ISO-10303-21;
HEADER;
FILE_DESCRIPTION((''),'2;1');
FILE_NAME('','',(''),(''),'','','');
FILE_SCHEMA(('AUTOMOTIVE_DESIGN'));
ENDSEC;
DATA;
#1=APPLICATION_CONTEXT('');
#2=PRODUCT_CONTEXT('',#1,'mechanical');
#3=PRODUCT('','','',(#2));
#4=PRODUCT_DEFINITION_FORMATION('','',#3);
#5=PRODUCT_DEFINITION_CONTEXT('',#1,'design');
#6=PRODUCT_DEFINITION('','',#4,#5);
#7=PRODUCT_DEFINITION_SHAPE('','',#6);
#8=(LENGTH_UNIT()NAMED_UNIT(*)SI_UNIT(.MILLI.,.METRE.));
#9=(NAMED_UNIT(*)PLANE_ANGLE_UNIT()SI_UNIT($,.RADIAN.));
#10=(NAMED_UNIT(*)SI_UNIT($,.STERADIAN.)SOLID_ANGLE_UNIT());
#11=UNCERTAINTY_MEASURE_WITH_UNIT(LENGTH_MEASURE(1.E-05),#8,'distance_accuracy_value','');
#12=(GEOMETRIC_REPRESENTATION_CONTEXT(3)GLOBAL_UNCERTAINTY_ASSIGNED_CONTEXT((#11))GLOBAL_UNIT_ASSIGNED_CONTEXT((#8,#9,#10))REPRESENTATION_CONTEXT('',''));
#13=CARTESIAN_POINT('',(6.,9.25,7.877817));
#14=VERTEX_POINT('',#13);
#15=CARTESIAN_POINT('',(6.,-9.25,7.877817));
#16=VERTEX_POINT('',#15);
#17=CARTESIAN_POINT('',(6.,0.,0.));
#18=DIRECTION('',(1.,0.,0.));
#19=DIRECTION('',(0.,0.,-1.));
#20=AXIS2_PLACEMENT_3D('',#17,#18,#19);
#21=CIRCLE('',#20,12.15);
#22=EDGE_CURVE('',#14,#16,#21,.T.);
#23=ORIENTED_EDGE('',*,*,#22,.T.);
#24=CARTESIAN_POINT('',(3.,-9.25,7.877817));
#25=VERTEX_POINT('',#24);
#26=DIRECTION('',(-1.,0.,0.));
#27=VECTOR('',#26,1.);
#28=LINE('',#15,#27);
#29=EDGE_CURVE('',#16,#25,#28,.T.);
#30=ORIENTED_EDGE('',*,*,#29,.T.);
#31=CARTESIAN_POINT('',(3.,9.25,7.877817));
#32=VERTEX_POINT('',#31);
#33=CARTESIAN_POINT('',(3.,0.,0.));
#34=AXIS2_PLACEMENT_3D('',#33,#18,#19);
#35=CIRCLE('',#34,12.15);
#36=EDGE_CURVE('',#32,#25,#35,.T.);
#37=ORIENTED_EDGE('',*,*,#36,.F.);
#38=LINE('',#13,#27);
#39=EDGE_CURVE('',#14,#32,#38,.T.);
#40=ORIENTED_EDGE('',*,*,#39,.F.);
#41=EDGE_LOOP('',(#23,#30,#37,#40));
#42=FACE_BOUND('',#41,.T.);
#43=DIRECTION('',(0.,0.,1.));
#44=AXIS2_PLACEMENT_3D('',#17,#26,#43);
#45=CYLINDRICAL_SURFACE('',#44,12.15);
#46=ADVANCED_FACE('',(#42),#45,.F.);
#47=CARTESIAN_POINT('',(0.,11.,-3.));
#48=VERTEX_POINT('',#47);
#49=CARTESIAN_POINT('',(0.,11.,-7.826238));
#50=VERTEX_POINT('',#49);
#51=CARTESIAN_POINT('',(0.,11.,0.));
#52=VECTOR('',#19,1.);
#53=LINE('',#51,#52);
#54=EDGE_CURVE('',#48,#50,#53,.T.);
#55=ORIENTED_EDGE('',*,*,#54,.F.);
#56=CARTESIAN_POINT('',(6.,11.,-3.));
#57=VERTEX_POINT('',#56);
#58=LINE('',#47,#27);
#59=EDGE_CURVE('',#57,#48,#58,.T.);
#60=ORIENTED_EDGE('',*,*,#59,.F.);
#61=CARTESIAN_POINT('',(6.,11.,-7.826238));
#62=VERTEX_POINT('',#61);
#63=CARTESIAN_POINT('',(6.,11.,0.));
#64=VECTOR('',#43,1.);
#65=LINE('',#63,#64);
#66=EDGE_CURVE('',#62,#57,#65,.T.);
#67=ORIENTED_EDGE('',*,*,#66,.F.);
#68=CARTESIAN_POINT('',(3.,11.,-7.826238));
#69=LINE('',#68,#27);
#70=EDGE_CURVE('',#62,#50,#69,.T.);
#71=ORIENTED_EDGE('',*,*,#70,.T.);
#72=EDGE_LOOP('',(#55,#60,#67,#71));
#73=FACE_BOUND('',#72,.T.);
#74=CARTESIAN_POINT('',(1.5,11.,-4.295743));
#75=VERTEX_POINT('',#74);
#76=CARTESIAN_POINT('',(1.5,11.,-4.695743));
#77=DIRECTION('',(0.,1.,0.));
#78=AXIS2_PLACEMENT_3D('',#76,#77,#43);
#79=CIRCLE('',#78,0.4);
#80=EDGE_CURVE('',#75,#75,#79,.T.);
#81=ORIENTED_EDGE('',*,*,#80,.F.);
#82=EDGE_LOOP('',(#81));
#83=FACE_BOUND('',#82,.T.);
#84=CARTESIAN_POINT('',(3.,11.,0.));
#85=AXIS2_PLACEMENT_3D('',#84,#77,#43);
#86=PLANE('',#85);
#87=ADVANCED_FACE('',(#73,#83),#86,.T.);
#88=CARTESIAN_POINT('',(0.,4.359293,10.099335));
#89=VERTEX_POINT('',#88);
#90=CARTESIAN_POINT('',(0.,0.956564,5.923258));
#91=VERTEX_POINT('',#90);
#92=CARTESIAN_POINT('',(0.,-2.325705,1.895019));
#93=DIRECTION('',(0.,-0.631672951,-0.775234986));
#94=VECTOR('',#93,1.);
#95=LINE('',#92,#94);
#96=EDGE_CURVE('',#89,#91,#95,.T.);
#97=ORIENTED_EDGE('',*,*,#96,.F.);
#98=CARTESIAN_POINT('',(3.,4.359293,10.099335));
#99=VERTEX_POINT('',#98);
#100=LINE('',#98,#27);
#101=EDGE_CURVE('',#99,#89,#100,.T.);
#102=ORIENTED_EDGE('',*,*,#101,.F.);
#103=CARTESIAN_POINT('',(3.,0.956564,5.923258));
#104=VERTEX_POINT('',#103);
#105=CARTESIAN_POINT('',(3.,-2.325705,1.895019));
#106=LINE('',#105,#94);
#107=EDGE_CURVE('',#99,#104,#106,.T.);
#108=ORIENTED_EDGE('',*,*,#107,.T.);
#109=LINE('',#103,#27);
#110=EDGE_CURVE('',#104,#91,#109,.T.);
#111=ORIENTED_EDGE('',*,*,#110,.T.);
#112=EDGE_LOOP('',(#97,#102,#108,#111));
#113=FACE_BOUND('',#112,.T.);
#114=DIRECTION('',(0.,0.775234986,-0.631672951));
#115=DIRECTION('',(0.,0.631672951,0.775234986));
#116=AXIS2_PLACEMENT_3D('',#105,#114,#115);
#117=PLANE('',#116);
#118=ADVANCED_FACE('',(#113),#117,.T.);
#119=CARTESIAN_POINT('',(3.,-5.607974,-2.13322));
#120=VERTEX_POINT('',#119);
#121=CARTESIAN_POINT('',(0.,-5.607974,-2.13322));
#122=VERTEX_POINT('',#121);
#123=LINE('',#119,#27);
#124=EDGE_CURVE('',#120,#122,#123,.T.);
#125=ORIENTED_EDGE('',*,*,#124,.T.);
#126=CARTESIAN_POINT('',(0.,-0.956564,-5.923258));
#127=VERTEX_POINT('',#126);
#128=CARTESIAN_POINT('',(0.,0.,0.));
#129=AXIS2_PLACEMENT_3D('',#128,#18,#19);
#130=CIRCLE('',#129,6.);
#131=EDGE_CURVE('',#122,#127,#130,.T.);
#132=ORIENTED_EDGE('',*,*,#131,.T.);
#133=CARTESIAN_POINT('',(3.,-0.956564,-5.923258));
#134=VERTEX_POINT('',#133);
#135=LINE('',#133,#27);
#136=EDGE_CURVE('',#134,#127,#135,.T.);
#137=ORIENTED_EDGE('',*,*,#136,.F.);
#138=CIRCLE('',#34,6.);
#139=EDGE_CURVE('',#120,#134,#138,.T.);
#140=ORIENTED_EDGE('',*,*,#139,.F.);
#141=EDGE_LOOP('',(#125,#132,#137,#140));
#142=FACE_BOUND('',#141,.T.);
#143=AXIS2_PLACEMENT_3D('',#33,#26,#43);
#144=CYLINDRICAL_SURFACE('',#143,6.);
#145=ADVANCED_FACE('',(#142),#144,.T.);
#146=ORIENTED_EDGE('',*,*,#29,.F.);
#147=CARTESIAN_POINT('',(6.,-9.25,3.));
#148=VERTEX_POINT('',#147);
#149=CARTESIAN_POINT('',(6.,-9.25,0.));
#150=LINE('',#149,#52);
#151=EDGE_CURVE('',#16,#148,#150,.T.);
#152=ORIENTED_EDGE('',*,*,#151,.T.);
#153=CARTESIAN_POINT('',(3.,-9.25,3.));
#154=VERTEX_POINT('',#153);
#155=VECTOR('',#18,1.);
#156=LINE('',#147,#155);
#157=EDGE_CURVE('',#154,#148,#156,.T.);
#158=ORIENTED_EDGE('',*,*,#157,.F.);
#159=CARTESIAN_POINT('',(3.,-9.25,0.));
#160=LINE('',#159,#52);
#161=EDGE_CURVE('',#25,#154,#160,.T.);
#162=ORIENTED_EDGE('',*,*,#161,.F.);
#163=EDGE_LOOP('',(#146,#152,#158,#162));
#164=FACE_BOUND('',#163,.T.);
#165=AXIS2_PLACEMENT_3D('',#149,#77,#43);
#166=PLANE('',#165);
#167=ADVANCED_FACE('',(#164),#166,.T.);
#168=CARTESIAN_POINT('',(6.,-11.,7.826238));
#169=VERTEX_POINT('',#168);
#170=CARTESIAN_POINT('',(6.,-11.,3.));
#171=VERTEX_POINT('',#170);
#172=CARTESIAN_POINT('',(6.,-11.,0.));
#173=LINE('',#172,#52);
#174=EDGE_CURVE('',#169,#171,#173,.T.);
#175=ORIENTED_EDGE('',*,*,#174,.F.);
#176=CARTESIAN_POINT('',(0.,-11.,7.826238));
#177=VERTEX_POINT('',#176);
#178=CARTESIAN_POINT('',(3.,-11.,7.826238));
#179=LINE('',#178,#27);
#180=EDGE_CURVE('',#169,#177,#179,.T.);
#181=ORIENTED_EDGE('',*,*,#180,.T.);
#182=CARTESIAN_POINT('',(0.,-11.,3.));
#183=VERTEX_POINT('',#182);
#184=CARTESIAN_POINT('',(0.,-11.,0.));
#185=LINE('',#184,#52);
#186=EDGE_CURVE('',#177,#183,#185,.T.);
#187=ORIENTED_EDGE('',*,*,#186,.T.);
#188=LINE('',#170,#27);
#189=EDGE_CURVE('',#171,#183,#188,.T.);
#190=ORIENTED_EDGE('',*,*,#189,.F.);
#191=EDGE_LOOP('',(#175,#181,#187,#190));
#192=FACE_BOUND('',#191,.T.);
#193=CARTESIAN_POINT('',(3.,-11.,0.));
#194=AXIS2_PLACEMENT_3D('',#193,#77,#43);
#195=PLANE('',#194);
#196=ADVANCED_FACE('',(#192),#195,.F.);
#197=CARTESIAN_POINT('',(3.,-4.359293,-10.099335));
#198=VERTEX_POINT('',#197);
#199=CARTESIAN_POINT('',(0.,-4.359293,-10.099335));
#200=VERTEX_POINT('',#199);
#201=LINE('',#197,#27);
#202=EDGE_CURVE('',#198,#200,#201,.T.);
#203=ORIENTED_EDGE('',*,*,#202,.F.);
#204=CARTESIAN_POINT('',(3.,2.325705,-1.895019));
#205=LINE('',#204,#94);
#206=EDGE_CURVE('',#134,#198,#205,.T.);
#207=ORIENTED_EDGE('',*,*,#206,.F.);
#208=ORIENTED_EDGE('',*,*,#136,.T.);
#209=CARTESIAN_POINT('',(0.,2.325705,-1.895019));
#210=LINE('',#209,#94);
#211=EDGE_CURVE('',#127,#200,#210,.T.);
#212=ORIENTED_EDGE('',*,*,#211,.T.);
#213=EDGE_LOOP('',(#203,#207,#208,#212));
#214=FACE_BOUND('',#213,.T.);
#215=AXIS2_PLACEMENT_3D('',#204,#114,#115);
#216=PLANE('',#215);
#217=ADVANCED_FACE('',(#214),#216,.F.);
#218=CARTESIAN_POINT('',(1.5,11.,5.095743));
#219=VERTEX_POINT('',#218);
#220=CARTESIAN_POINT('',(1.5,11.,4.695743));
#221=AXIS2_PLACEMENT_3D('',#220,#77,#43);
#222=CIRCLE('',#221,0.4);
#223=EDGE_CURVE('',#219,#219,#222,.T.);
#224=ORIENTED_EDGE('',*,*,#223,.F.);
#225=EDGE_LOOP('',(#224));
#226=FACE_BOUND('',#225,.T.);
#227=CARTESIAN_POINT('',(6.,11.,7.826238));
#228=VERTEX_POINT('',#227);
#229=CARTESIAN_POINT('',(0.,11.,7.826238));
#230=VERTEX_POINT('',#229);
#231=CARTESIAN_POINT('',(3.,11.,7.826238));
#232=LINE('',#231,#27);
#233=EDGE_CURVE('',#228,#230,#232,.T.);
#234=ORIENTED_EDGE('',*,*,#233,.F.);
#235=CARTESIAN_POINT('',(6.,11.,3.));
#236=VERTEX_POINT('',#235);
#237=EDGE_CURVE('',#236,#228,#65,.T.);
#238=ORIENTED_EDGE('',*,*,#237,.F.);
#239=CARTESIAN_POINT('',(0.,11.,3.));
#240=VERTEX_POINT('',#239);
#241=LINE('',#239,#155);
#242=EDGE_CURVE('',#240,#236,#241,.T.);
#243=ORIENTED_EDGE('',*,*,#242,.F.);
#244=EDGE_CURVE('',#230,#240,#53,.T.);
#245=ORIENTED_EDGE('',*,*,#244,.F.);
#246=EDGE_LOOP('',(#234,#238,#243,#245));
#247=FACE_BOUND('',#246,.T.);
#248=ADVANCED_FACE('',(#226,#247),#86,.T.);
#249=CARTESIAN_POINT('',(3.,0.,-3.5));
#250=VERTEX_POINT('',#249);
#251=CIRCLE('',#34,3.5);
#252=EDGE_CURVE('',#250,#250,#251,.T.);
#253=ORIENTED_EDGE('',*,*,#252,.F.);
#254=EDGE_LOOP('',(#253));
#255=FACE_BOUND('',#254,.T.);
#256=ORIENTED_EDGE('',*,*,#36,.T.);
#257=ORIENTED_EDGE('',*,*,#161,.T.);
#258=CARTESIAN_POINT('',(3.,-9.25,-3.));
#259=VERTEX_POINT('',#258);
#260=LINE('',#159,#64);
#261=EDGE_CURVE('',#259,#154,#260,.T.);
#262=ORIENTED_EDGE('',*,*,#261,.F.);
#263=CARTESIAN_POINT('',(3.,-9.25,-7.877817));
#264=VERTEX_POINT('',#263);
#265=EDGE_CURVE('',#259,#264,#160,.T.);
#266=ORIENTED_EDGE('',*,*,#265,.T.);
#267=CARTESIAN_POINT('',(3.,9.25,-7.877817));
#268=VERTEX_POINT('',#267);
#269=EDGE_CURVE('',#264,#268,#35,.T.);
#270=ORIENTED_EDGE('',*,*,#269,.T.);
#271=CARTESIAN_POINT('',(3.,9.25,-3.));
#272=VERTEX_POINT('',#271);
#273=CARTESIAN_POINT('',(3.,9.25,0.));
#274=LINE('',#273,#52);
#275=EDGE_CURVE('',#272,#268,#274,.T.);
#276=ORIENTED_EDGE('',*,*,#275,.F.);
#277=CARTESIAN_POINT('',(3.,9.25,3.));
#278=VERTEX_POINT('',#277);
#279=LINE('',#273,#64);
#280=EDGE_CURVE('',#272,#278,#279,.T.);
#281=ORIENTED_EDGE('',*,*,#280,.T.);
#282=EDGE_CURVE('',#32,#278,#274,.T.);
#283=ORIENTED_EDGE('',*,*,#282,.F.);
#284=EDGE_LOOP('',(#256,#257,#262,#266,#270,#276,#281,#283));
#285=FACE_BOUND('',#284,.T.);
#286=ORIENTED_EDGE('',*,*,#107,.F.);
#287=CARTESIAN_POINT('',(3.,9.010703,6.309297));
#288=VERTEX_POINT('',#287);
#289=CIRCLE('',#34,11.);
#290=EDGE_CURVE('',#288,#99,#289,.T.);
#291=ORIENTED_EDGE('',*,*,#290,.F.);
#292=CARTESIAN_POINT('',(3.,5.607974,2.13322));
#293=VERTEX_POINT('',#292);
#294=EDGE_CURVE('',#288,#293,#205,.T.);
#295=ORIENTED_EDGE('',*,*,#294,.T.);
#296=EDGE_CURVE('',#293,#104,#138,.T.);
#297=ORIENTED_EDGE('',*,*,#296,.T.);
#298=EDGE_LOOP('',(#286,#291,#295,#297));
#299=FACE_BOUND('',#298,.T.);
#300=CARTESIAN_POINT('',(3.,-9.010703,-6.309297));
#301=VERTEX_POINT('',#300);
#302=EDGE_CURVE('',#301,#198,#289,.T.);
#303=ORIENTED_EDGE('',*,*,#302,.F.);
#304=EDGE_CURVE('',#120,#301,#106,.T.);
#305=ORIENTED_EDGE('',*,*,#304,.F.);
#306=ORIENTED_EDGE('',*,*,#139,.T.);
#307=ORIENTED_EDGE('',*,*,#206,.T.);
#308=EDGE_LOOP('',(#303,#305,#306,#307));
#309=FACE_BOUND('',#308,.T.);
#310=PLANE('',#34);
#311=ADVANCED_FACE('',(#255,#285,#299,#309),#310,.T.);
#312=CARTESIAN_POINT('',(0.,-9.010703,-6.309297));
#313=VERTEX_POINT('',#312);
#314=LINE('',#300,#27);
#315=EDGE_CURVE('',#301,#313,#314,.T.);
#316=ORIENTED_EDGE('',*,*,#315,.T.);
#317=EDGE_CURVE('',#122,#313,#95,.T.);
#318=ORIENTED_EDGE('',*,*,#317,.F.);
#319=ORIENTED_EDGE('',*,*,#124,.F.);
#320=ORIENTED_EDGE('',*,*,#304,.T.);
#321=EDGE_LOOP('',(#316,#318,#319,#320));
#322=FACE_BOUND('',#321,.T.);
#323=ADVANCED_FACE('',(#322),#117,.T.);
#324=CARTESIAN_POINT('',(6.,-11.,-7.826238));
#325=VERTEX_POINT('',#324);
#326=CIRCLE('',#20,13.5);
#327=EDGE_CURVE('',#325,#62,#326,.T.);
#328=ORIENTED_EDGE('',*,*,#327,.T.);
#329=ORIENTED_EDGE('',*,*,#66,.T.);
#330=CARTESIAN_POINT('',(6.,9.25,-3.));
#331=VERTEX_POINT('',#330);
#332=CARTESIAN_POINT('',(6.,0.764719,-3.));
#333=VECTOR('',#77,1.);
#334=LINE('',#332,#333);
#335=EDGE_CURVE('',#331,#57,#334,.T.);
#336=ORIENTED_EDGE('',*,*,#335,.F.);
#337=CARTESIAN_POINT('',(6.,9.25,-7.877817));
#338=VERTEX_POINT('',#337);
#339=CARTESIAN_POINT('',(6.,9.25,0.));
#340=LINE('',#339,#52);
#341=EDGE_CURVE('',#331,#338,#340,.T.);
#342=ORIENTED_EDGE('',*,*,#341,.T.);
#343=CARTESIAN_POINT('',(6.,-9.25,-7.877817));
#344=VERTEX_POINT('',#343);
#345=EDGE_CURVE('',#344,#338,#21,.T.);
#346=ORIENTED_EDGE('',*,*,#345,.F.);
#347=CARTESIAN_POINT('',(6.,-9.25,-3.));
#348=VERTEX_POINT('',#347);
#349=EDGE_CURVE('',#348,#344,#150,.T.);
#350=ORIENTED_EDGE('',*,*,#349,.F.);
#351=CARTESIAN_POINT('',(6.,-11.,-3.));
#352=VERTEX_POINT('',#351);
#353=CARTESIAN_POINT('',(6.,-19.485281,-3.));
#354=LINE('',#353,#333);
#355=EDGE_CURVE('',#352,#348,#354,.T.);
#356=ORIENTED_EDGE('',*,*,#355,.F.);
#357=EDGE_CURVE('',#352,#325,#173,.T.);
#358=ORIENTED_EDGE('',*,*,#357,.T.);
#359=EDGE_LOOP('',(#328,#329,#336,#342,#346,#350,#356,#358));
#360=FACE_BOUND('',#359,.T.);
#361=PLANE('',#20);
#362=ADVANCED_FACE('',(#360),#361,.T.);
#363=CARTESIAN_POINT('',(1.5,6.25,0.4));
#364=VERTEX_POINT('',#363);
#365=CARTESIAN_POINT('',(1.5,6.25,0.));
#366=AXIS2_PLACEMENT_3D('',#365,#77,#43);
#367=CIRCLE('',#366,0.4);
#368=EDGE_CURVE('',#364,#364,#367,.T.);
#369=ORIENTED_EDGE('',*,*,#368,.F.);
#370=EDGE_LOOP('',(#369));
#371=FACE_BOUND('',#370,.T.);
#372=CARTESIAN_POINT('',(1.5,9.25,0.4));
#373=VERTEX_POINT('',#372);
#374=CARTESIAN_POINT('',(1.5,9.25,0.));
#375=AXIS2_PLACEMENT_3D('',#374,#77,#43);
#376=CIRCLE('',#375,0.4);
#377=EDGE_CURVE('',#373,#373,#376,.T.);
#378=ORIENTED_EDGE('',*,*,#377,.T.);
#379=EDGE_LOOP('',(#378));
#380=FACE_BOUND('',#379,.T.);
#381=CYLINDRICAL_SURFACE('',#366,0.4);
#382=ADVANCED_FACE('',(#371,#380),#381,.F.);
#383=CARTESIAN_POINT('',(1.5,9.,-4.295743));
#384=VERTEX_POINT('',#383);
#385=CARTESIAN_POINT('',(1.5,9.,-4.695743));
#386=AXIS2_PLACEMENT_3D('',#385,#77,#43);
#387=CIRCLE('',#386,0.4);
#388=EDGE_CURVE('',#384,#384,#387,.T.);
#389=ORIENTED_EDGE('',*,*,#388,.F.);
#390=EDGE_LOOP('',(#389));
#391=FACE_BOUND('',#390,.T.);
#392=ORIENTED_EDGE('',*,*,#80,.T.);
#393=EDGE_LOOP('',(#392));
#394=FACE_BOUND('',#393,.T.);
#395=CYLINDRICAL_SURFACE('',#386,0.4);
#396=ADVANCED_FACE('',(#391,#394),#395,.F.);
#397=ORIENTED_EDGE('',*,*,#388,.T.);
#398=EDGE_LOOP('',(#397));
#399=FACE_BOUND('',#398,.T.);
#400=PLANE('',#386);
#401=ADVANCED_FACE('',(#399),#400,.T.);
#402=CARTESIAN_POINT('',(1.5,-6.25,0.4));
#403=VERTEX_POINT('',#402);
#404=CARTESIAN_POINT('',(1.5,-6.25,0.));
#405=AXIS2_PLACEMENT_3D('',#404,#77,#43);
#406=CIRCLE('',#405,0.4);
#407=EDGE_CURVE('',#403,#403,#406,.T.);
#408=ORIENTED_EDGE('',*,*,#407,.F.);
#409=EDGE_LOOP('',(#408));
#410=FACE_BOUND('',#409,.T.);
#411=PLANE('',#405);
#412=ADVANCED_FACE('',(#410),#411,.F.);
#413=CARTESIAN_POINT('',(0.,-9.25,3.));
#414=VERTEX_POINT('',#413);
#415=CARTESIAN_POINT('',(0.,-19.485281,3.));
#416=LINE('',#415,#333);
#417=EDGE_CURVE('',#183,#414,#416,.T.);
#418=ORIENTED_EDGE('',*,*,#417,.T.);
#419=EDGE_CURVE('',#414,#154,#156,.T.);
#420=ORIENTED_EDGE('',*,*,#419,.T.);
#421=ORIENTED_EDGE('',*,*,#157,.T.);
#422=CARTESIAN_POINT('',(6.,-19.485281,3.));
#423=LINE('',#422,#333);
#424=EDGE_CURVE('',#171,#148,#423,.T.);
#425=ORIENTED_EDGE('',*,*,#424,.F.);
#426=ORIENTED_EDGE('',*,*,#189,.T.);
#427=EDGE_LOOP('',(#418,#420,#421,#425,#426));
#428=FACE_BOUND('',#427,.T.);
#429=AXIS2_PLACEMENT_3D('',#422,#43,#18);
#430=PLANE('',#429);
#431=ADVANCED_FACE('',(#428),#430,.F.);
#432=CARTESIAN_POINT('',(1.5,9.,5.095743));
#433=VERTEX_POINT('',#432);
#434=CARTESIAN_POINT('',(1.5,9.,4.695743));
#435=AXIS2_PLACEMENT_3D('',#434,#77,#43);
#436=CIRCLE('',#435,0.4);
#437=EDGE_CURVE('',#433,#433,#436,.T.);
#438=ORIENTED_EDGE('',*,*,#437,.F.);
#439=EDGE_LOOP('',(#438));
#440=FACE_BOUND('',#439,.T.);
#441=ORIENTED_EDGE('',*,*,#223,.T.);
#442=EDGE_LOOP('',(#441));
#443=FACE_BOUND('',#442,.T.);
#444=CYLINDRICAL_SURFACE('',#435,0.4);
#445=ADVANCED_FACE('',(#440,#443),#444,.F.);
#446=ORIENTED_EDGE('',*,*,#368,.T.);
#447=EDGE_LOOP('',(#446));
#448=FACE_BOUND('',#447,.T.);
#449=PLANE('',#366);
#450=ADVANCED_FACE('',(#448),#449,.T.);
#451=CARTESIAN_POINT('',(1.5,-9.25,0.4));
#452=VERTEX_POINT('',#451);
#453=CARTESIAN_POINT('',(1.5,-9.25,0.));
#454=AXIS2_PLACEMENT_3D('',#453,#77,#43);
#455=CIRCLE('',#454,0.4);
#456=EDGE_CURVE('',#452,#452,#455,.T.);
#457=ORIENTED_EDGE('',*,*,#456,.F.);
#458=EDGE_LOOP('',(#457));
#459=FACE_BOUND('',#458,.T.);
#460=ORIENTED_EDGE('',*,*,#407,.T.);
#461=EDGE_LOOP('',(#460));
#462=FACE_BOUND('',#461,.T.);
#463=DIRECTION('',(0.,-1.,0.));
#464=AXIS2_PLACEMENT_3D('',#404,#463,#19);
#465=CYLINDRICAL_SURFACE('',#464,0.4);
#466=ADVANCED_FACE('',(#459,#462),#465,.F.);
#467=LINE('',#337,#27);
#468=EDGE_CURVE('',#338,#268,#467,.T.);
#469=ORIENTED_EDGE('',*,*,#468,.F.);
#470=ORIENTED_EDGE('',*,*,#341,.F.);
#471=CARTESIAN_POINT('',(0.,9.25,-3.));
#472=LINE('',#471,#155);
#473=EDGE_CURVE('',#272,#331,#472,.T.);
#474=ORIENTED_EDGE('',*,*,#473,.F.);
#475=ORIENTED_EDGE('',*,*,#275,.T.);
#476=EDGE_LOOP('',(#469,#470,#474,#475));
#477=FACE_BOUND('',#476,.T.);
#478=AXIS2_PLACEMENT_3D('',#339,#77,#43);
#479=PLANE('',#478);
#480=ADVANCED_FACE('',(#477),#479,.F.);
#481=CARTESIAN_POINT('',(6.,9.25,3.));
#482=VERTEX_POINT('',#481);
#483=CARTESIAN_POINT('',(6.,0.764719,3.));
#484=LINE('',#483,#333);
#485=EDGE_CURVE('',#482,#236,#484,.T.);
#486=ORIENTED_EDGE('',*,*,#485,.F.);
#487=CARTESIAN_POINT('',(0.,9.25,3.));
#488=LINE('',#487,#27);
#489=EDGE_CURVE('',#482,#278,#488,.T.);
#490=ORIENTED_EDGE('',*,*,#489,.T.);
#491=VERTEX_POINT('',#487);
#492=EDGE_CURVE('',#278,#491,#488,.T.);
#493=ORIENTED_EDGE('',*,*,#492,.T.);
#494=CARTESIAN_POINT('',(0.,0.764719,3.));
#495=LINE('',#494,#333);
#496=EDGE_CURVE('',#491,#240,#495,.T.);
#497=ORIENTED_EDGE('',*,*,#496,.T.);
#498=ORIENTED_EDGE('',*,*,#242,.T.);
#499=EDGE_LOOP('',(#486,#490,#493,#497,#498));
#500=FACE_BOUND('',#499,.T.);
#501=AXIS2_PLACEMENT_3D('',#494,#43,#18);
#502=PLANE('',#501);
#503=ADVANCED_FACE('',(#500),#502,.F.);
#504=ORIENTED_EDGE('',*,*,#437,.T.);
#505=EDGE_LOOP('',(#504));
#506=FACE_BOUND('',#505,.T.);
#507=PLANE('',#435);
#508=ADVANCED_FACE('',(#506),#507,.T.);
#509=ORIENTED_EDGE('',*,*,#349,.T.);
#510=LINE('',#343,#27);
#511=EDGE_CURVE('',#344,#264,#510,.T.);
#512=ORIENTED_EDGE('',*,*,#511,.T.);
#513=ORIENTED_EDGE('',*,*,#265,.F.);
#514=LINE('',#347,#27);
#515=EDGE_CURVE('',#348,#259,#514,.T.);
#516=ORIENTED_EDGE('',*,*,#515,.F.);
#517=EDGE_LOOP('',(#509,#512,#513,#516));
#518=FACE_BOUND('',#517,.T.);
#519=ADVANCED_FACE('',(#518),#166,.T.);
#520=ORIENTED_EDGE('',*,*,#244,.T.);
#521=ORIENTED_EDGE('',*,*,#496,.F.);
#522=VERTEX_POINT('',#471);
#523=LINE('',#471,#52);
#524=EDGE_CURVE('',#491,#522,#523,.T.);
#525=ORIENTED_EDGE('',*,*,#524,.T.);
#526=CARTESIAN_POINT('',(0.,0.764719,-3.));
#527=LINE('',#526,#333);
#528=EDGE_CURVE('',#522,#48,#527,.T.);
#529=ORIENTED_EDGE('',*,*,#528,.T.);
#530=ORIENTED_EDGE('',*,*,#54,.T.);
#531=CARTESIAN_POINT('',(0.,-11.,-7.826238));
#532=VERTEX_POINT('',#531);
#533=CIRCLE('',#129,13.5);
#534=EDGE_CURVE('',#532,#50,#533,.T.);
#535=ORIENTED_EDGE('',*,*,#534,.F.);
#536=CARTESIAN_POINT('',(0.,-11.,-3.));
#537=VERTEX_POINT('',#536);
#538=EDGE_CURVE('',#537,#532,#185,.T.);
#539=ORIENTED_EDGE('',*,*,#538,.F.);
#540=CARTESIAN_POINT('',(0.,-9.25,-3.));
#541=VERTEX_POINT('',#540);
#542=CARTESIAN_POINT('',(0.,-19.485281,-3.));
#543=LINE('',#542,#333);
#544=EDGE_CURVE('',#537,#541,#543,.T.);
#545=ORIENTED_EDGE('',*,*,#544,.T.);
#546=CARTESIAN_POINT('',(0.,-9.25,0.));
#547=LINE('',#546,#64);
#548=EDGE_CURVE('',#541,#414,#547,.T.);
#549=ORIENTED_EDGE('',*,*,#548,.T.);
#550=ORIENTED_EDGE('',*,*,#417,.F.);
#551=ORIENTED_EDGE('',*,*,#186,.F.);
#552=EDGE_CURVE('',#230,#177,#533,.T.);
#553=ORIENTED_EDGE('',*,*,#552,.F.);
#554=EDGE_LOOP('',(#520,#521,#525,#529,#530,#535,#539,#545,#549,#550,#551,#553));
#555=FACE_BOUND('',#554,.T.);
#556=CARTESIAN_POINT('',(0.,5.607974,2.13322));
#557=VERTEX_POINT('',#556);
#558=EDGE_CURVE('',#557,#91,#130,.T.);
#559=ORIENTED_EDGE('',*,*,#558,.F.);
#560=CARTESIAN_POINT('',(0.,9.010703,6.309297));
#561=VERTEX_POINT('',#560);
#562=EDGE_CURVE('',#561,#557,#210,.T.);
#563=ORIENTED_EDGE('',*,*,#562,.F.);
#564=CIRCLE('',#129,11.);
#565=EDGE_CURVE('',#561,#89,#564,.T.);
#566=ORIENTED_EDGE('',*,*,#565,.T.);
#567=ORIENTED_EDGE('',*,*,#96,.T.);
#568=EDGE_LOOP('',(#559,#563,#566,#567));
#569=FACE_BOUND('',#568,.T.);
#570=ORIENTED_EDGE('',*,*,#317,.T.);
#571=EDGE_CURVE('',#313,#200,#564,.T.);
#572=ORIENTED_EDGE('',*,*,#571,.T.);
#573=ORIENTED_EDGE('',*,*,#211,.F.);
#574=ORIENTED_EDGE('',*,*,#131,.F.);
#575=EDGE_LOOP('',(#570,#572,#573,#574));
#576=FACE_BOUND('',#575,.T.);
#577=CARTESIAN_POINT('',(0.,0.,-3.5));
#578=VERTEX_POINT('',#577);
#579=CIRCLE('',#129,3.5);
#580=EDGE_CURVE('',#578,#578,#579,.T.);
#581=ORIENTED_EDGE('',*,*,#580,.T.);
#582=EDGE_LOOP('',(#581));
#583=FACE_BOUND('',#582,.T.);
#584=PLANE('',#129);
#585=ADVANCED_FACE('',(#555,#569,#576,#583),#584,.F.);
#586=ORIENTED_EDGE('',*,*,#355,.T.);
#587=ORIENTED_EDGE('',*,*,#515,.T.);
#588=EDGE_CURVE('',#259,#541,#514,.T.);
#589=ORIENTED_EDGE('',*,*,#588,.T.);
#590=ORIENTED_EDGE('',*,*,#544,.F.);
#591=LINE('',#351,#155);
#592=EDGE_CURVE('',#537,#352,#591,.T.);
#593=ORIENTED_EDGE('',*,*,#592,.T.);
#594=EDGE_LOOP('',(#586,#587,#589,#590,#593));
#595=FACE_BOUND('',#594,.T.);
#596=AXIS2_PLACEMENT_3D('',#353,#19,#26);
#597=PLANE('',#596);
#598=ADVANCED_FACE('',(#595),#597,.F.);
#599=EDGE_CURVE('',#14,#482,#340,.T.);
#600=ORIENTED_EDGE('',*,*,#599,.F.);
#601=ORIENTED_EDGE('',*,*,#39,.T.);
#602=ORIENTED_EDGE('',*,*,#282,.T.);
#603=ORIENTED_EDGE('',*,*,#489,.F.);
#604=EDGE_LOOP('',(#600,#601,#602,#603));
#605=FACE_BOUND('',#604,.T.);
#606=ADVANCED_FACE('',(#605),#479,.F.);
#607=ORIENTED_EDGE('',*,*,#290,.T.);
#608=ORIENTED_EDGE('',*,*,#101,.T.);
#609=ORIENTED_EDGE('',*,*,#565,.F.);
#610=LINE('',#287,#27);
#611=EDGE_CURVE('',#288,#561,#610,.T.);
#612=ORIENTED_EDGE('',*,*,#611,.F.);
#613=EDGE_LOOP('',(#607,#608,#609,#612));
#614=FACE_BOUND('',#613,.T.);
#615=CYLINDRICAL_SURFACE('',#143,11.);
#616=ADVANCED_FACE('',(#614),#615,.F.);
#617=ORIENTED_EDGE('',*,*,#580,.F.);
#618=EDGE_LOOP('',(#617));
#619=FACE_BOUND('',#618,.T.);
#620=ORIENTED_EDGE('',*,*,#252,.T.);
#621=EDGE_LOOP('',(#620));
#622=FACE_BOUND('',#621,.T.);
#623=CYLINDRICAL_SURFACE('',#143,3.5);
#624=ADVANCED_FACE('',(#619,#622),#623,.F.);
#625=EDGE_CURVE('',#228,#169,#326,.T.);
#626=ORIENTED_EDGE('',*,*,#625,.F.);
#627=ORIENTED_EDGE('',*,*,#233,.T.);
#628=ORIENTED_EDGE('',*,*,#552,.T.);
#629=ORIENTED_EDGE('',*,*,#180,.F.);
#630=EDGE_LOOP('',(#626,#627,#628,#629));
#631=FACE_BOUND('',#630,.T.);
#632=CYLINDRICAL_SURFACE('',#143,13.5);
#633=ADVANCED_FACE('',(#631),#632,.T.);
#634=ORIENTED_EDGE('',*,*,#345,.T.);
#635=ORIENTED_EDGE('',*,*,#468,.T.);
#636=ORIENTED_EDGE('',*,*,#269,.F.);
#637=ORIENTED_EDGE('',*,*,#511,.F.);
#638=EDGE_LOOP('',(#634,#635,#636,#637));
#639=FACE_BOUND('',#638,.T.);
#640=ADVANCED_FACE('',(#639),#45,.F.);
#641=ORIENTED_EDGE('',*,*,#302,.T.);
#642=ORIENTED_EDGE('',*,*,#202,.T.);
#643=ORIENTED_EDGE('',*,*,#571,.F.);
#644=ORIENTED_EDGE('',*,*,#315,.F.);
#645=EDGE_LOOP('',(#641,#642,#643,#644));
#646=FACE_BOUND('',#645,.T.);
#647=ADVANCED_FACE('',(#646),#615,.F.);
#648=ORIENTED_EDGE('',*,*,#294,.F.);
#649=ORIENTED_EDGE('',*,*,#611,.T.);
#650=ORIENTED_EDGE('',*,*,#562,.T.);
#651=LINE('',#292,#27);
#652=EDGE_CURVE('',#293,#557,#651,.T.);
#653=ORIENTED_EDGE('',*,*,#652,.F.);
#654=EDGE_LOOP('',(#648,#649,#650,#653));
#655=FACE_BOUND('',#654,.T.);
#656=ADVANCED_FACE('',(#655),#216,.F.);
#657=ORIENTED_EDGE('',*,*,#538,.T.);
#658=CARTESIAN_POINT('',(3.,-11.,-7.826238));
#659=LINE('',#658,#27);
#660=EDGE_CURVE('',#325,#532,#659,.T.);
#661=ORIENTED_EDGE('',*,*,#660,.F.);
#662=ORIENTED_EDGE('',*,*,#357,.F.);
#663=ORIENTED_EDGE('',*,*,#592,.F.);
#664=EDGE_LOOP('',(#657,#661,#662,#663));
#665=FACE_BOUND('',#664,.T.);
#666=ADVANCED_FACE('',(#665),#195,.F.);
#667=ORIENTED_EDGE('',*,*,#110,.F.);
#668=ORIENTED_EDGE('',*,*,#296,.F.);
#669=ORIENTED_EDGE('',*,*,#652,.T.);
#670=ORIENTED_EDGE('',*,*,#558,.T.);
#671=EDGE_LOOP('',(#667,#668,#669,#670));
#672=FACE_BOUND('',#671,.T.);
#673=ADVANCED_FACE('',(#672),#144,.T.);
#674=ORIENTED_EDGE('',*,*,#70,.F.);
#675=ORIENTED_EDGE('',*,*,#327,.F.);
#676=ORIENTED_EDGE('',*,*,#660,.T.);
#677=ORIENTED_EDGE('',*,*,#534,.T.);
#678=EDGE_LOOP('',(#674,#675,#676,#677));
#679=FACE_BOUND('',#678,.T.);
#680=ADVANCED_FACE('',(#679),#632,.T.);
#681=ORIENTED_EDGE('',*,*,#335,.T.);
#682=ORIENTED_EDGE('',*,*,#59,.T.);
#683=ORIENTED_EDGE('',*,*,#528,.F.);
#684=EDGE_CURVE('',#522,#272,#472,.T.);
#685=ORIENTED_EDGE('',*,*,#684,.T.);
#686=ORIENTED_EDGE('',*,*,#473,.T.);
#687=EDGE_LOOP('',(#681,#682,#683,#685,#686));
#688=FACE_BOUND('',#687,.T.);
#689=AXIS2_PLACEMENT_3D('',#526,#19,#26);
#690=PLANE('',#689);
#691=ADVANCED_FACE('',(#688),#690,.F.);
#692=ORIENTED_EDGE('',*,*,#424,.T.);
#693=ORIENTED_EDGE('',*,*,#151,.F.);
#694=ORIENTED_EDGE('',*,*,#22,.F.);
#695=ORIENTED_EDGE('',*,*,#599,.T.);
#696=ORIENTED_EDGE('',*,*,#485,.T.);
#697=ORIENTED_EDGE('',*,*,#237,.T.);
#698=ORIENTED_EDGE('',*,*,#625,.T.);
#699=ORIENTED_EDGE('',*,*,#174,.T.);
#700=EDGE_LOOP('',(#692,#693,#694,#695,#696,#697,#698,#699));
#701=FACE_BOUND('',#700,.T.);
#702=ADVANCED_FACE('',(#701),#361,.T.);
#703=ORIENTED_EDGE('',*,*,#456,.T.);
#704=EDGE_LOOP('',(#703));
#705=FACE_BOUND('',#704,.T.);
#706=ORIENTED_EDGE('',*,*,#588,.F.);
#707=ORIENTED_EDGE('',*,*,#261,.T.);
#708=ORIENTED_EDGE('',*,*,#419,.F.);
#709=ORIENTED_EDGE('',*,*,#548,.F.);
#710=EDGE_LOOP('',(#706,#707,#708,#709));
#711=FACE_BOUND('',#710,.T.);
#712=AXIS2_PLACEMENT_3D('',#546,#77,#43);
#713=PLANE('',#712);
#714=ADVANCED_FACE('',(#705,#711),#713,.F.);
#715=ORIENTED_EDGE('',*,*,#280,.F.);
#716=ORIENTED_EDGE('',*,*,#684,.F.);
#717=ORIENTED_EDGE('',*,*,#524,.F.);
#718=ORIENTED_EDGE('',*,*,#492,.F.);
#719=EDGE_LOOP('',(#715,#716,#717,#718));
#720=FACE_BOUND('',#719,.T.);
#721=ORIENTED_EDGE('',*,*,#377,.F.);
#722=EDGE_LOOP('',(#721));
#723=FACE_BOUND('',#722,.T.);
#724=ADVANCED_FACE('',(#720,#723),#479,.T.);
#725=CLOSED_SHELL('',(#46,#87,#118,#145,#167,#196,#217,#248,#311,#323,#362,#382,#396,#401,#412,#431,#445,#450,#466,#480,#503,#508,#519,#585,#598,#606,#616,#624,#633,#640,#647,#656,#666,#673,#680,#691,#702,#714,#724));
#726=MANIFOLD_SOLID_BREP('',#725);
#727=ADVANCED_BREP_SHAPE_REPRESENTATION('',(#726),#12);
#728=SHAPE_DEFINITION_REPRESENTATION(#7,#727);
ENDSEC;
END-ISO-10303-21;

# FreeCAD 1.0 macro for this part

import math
import FreeCAD as App
import Part
import Sketcher
Q = App.Units.Quantity

doc = App.newDocument("Part")
params = doc.addObject("Spreadsheet::Sheet", "Params")
for row, (alias, value) in enumerate([
    ("sketch1_radius", "11 mm"),
    ("sketch1_radius2", "6 mm"),
    ("sketch1_radius3", "13.5 mm"),
    ("sketch1_radius4", "3.5 mm"),
    ("pad1_length", "3 mm"),
    ("sketch2_radius", "13.5 mm"),
    ("sketch2_radius2", "12.15 mm"),
    ("pad2_length", "3 mm"),
    ("sketch3_width", "6 mm"),
    ("pocket1_length", "1.75 mm"),
    ("sketch4_diameter", "0.8 mm"),
    ("pocket2_length", "3 mm"),
    ("sketch5_width", "6 mm"),
    ("pocket3_length", "1.75 mm"),
    ("sketch6_diameter", "0.8 mm"),
    ("pocket4_length", "3 mm"),
    ("sketch7_diameter", "0.8 mm"),
    ("pocket5_length", "2 mm"),
], start=1):
    params.set(f"A{row}", alias)
    params.set(f"B{row}", "=" + value)
    params.setAlias(f"B{row}", alias)

body = doc.addObject("PartDesign::Body", "Body")

# Sketch on YZ plane
sketch1 = body.newObject("Sketcher::SketchObject", "Sketch")
sketch1.AttachmentSupport = (doc.getObject("YZ_Plane"), [""])
sketch1.MapMode = "FlatFace"
sketch1.addGeometry(Part.ArcOfCircle(Part.Circle(App.Vector(0, 0, 0), App.Vector(0, 0, 1), 13.5), math.radians(90), math.radians(145)), False)
sketch1.addGeometry(Part.LineSegment(App.Vector(-11, 7.8, 0), App.Vector(-11, -7.8, 0)), False)
sketch1.addGeometry(Part.ArcOfCircle(Part.Circle(App.Vector(0, 0, 0), App.Vector(0, 0, 1), 13.5), math.radians(-144.57), math.radians(-142.01)), False)
sketch1.addGeometry(Part.ArcOfCircle(Part.Circle(App.Vector(0, 0, 0), App.Vector(0, 0, 1), 13.5), math.radians(-142), math.radians(-116)), False)
sketch1.addGeometry(Part.ArcOfCircle(Part.Circle(App.Vector(0, 0, 0), App.Vector(0, 0, 1), 13.5), math.radians(-116), math.radians(-90)), False)
sketch1.addGeometry(Part.ArcOfCircle(Part.Circle(App.Vector(0, 0, 0), App.Vector(0, 0, 1), 13.5), math.radians(-90), math.radians(-35)), False)
sketch1.addGeometry(Part.LineSegment(App.Vector(11, -7.8, 0), App.Vector(11, 7.8, 0)), False)
sketch1.addGeometry(Part.ArcOfCircle(Part.Circle(App.Vector(0, 0, 0), App.Vector(0, 0, 1), 13.5), math.radians(35.43), math.radians(37.99)), False)
sketch1.addGeometry(Part.ArcOfCircle(Part.Circle(App.Vector(0, 0, 0), App.Vector(0, 0, 1), 13.5), math.radians(38), math.radians(64)), False)
sketch1.addGeometry(Part.ArcOfCircle(Part.Circle(App.Vector(0, 0, 0), App.Vector(0, 0, 1), 13.5), math.radians(64), math.radians(90)), False)
sketch1.addGeometry(Part.LineSegment(App.Vector(-1, -5.9, 0), App.Vector(-4.4, -10.1, 0)), False)
sketch1.addGeometry(Part.ArcOfCircle(Part.Circle(App.Vector(0, 0, 0), App.Vector(0, 0, 1), 11), math.radians(-145), math.radians(-113)), False)
sketch1.addGeometry(Part.LineSegment(App.Vector(-9, -6.3, 0), App.Vector(-5.6, -2.1, 0)), False)
sketch1.addGeometry(Part.ArcOfCircle(Part.Circle(App.Vector(0, 0, 0), App.Vector(0, 0, 1), 6), math.radians(-159), math.radians(-99)), False)
sketch1.addGeometry(Part.ArcOfCircle(Part.Circle(App.Vector(0, 0, 0), App.Vector(0, 0, 1), 3.5), math.radians(172), math.radians(270)), False)
sketch1.addGeometry(Part.ArcOfCircle(Part.Circle(App.Vector(0, 0, 0), App.Vector(0, 0, 1), 3.5), math.radians(110), math.radians(172)), False)
sketch1.addGeometry(Part.ArcOfCircle(Part.Circle(App.Vector(0, 0, 0), App.Vector(0, 0, 1), 3.5), math.radians(-8), math.radians(110)), False)
sketch1.addGeometry(Part.ArcOfCircle(Part.Circle(App.Vector(0, 0, 0), App.Vector(0, 0, 1), 3.5), math.radians(-90), math.radians(-8)), False)
sketch1.addGeometry(Part.LineSegment(App.Vector(1, 5.9, 0), App.Vector(4.4, 10.1, 0)), False)
sketch1.addGeometry(Part.ArcOfCircle(Part.Circle(App.Vector(0, 0, 0), App.Vector(0, 0, 1), 11), math.radians(35), math.radians(67)), False)
sketch1.addGeometry(Part.LineSegment(App.Vector(9, 6.3, 0), App.Vector(5.6, 2.1, 0)), False)
sketch1.addGeometry(Part.ArcOfCircle(Part.Circle(App.Vector(0, 0, 0), App.Vector(0, 0, 1), 6), math.radians(21), math.radians(81)), False)
sketch1.addConstraint(Sketcher.Constraint("Coincident", 0, 2, 1, 1))
sketch1.addConstraint(Sketcher.Constraint("Coincident", 1, 2, 2, 1))
sketch1.addConstraint(Sketcher.Constraint("Tangent", 2, 2, 3, 1))
sketch1.addConstraint(Sketcher.Constraint("Tangent", 3, 2, 4, 1))
sketch1.addConstraint(Sketcher.Constraint("Tangent", 4, 2, 5, 1))
sketch1.addConstraint(Sketcher.Constraint("Coincident", 5, 2, 6, 1))
sketch1.addConstraint(Sketcher.Constraint("Coincident", 6, 2, 7, 1))
sketch1.addConstraint(Sketcher.Constraint("Tangent", 7, 2, 8, 1))
sketch1.addConstraint(Sketcher.Constraint("Tangent", 8, 2, 9, 1))
sketch1.addConstraint(Sketcher.Constraint("Tangent", 9, 2, 0, 1))
sketch1.addConstraint(Sketcher.Constraint("Coincident", 10, 2, 11, 2))
sketch1.addConstraint(Sketcher.Constraint("Coincident", 11, 1, 12, 1))
sketch1.addConstraint(Sketcher.Constraint("Coincident", 12, 2, 13, 1))
sketch1.addConstraint(Sketcher.Constraint("Coincident", 13, 2, 10, 1))
sketch1.addConstraint(Sketcher.Constraint("Tangent", 14, 1, 15, 2))
sketch1.addConstraint(Sketcher.Constraint("Tangent", 15, 1, 16, 2))
sketch1.addConstraint(Sketcher.Constraint("Tangent", 16, 1, 17, 2))
sketch1.addConstraint(Sketcher.Constraint("Tangent", 17, 1, 14, 2))
sketch1.addConstraint(Sketcher.Constraint("Coincident", 18, 2, 19, 2))
sketch1.addConstraint(Sketcher.Constraint("Coincident", 19, 1, 20, 1))
sketch1.addConstraint(Sketcher.Constraint("Coincident", 20, 2, 21, 1))
sketch1.addConstraint(Sketcher.Constraint("Coincident", 21, 2, 18, 1))
sketch1.addConstraint(Sketcher.Constraint("Vertical", 1))
sketch1.addConstraint(Sketcher.Constraint("Vertical", 6))
sketch1.addConstraint(Sketcher.Constraint("Coincident", 0, 3, -1, 1))
sketch1.addConstraint(Sketcher.Constraint("Coincident", 2, 3, -1, 1))
sketch1.addConstraint(Sketcher.Constraint("Coincident", 4, 3, -1, 1))
sketch1.addConstraint(Sketcher.Constraint("Coincident", 7, 3, -1, 1))
sketch1.addConstraint(Sketcher.Constraint("Coincident", 11, 3, -1, 1))
sketch1.addConstraint(Sketcher.Constraint("Coincident", 13, 3, -1, 1))
sketch1.addConstraint(Sketcher.Constraint("Coincident", 14, 3, -1, 1))
sketch1.addConstraint(Sketcher.Constraint("Coincident", 19, 3, -1, 1))
sketch1.addConstraint(Sketcher.Constraint("Coincident", 21, 3, -1, 1))
sketch1.addConstraint(Sketcher.Constraint("Equal", 0, 2))
sketch1.addConstraint(Sketcher.Constraint("Equal", 4, 5))
sketch1.addConstraint(Sketcher.Constraint("Equal", 5, 7))
sketch1.addConstraint(Sketcher.Constraint("Equal", 14, 15))
sketch1.addConstraint(Sketcher.Constraint("Equal", 11, 19))
sketch1.addConstraint(Sketcher.Constraint("Equal", 13, 21))
sketch1.addConstraint(Sketcher.Constraint("PointOnObject", 4, 2, -2))
sketch1.addConstraint(Sketcher.Constraint("PointOnObject", 9, 2, -2))
sketch1.addConstraint(Sketcher.Constraint("PointOnObject", 17, 1, -2))
sketch1.addConstraint(Sketcher.Constraint("Parallel", 10, 12))
sketch1.addConstraint(Sketcher.Constraint("Parallel", 12, 18))
sketch1.addConstraint(Sketcher.Constraint("Parallel", 18, 20))
sketch1.addConstraint(Sketcher.Constraint("Horizontal", 1, 2, 5, 2))
sketch1.addConstraint(Sketcher.Constraint("Equal", 10, 12))
sketch1.addConstraint(Sketcher.Constraint("Equal", 12, 18))
sketch1.addConstraint(Sketcher.Constraint("Equal", 18, 20))
sketch1.addConstraint(Sketcher.Constraint("Radius", 11, Q("11 mm")))
sketch1.addConstraint(Sketcher.Constraint("Radius", 13, Q("6 mm")))
sketch1.addConstraint(Sketcher.Constraint("Radius", 0, Q("13.5 mm")))
sketch1.addConstraint(Sketcher.Constraint("Radius", 14, Q("3.5 mm")))
sketch1.addConstraint(Sketcher.Constraint("DistanceX", 0, 2, -1, 1, Q("11 mm")))
sketch1.addConstraint(Sketcher.Constraint("DistanceY", 2, 2, -1, 1, Q("8.30897 mm")))
sketch1.addConstraint(Sketcher.Constraint("DistanceY", -1, 1, 7, 2, Q("8.30897 mm")))
sketch1.addConstraint(Sketcher.Constraint("DistanceY", 12, 2, -1, 1, Q("2.13322 mm")))
sketch1.addConstraint(Sketcher.Constraint("DistanceY", 13, 2, -1, 1, Q("5.923258 mm")))
sketch1.addConstraint(Sketcher.Constraint("DistanceX", 14, 1, -1, 1, Q("3.46447 mm")))
sketch1.addConstraint(Sketcher.Constraint("DistanceX", 15, 1, -1, 1, Q("1.18694 mm")))
sketch1.addConstraint(Sketcher.Constraint("DistanceX", -1, 1, 16, 1, Q("3.46447 mm")))
sketch1.addConstraint(Sketcher.Constraint("DistanceX", 2, 2, 3, 2, Q("4.65141 mm")))
sketch1.addConstraint(Sketcher.Constraint("DistanceX", 8, 2, 7, 2, Q("4.65141 mm")))
sketch1.setExpression("Constraints[49]", "Params.sketch1_radius")
sketch1.setExpression("Constraints[50]", "Params.sketch1_radius2")
sketch1.setExpression("Constraints[51]", "Params.sketch1_radius3")
sketch1.setExpression("Constraints[52]", "Params.sketch1_radius4")
pad1 = body.newObject("PartDesign::Pad", "Pad")
pad1.Profile = sketch1
pad1.setExpression("Length", "Params.pad1_length")

# Sketch on YZ plane
sketch2 = body.newObject("Sketcher::SketchObject", "Sketch001")
sketch2.AttachmentSupport = (doc.getObject("YZ_Plane"), [""])
sketch2.MapMode = "FlatFace"
sketch2.AttachmentOffset = App.Placement(App.Vector(0, 0, 3), App.Rotation())
sketch2.addGeometry(Part.ArcOfCircle(Part.Circle(App.Vector(0, 0, 0), App.Vector(0, 0, 1), 13.5), math.radians(-64.16), math.radians(-46.75)), False)
sketch2.addGeometry(Part.ArcOfCircle(Part.Circle(App.Vector(0, 0, 0), App.Vector(0, 0, 1), 13.5), math.radians(-46.75), math.radians(-35.43)), False)
sketch2.addGeometry(Part.LineSegment(App.Vector(11, -7.8, 0), App.Vector(11, 7.8, 0)), False)
sketch2.addGeometry(Part.ArcOfCircle(Part.Circle(App.Vector(0, 0, 0), App.Vector(0, 0, 1), 13.5), math.radians(35.43), math.radians(46.75)), False)
sketch2.addGeometry(Part.ArcOfCircle(Part.Circle(App.Vector(0, 0, 0), App.Vector(0, 0, 1), 13.5), math.radians(46.75), math.radians(64.16)), False)
sketch2.addGeometry(Part.ArcOfCircle(Part.Circle(App.Vector(0, 0, 0), App.Vector(0, 0, 1), 13.5), math.radians(64), math.radians(90)), False)
sketch2.addGeometry(Part.ArcOfCircle(Part.Circle(App.Vector(0, 0, 0), App.Vector(0, 0, 1), 13.5), math.radians(90), math.radians(116)), False)
sketch2.addGeometry(Part.ArcOfCircle(Part.Circle(App.Vector(0, 0, 0), App.Vector(0, 0, 1), 13.5), math.radians(115.84), math.radians(133.25)), False)
sketch2.addGeometry(Part.ArcOfCircle(Part.Circle(App.Vector(0, 0, 0), App.Vector(0, 0, 1), 13.5), math.radians(133.25), math.radians(144.57)), False)
sketch2.addGeometry(Part.LineSegment(App.Vector(-11, 7.8, 0), App.Vector(-11, -7.8, 0)), False)
sketch2.addGeometry(Part.ArcOfCircle(Part.Circle(App.Vector(0, 0, 0), App.Vector(0, 0, 1), 13.5), math.radians(-144.57), math.radians(-133.25)), False)
sketch2.addGeometry(Part.ArcOfCircle(Part.Circle(App.Vector(0, 0, 0), App.Vector(0, 0, 1), 13.5), math.radians(-133.25), math.radians(-115.84)), False)
sketch2.addGeometry(Part.ArcOfCircle(Part.Circle(App.Vector(0, 0, 0), App.Vector(0, 0, 1), 13.5), math.radians(-116), math.radians(-90)), False)
sketch2.addGeometry(Part.ArcOfCircle(Part.Circle(App.Vector(0, 0, 0), App.Vector(0, 0, 1), 13.5), math.radians(-90), math.radians(-64)), False)
sketch2.addGeometry(Part.LineSegment(App.Vector(9.2, 7.9, 0), App.Vector(9.2, -7.9, 0)), False)
sketch2.addGeometry(Part.ArcOfCircle(Part.Circle(App.Vector(0, 0, 0), App.Vector(0, 0, 1), 12.1), math.radians(-90), math.radians(-40)), False)
sketch2.addGeometry(Part.ArcOfCircle(Part.Circle(App.Vector(0, 0, 0), App.Vector(0, 0, 1), 12.1), math.radians(-140), math.radians(-90)), False)
sketch2.addGeometry(Part.LineSegment(App.Vector(-9.2, -7.9, 0), App.Vector(-9.2, 7.9, 0)), False)
sketch2.addGeometry(Part.ArcOfCircle(Part.Circle(App.Vector(0, 0, 0), App.Vector(0, 0, 1), 12.1), math.radians(90), math.radians(140)), False)
sketch2.addGeometry(Part.ArcOfCircle(Part.Circle(App.Vector(0, 0, 0), App.Vector(0, 0, 1), 12.1), math.radians(40), math.radians(90)), False)
sketch2.addConstraint(Sketcher.Constraint("Tangent", 0, 2, 1, 1))
sketch2.addConstraint(Sketcher.Constraint("Coincident", 1, 2, 2, 1))
sketch2.addConstraint(Sketcher.Constraint("Coincident", 2, 2, 3, 1))
sketch2.addConstraint(Sketcher.Constraint("Tangent", 3, 2, 4, 1))
sketch2.addConstraint(Sketcher.Constraint("Tangent", 4, 2, 5, 1))
sketch2.addConstraint(Sketcher.Constraint("Tangent", 5, 2, 6, 1))
sketch2.addConstraint(Sketcher.Constraint("Tangent", 6, 2, 7, 1))
sketch2.addConstraint(Sketcher.Constraint("Tangent", 7, 2, 8, 1))
sketch2.addConstraint(Sketcher.Constraint("Coincident", 8, 2, 9, 1))
sketch2.addConstraint(Sketcher.Constraint("Coincident", 9, 2, 10, 1))
sketch2.addConstraint(Sketcher.Constraint("Tangent", 10, 2, 11, 1))
sketch2.addConstraint(Sketcher.Constraint("Tangent", 11, 2, 12, 1))
sketch2.addConstraint(Sketcher.Constraint("Tangent", 12, 2, 13, 1))
sketch2.addConstraint(Sketcher.Constraint("Tangent", 13, 2, 0, 1))
sketch2.addConstraint(Sketcher.Constraint("Coincident", 14, 2, 15, 2))
sketch2.addConstraint(Sketcher.Constraint("Tangent", 15, 1, 16, 2))
sketch2.addConstraint(Sketcher.Constraint("Coincident", 16, 1, 17, 1))
sketch2.addConstraint(Sketcher.Constraint("Coincident", 17, 2, 18, 2))
sketch2.addConstraint(Sketcher.Constraint("Tangent", 18, 1, 19, 2))
sketch2.addConstraint(Sketcher.Constraint("Coincident", 19, 1, 14, 1))
sketch2.addConstraint(Sketcher.Constraint("Vertical", 2))
sketch2.addConstraint(Sketcher.Constraint("Vertical", 9))
sketch2.addConstraint(Sketcher.Constraint("Vertical", 14))
sketch2.addConstraint(Sketcher.Constraint("Vertical", 17))
sketch2.addConstraint(Sketcher.Constraint("Coincident", 0, 3, -1, 1))
sketch2.addConstraint(Sketcher.Constraint("Coincident", 3, 3, -1, 1))
sketch2.addConstraint(Sketcher.Constraint("Coincident", 5, 3, -1, 1))
sketch2.addConstraint(Sketcher.Constraint("Coincident", 7, 3, -1, 1))
sketch2.addConstraint(Sketcher.Constraint("Coincident", 10, 3, -1, 1))
sketch2.addConstraint(Sketcher.Constraint("Coincident", 12, 3, -1, 1))
sketch2.addConstraint(Sketcher.Constraint("Coincident", 15, 3, -1, 1))
sketch2.addConstraint(Sketcher.Constraint("Coincident", 18, 3, -1, 1))
sketch2.addConstraint(Sketcher.Constraint("Equal", 0, 1))
sketch2.addConstraint(Sketcher.Constraint("Equal", 1, 3))
sketch2.addConstraint(Sketcher.Constraint("Equal", 7, 8))
sketch2.addConstraint(Sketcher.Constraint("Equal", 15, 16))
sketch2.addConstraint(Sketcher.Constraint("Equal", 16, 18))
sketch2.addConstraint(Sketcher.Constraint("Equal", 18, 19))
sketch2.addConstraint(Sketcher.Constraint("PointOnObject", 5, 2, -2))
sketch2.addConstraint(Sketcher.Constraint("PointOnObject", 12, 2, -2))
sketch2.addConstraint(Sketcher.Constraint("PointOnObject", 15, 1, -2))
sketch2.addConstraint(Sketcher.Constraint("PointOnObject", 18, 1, -2))
sketch2.addConstraint(Sketcher.Constraint("Horizontal", 4, 2, 6, 2))
sketch2.addConstraint(Sketcher.Constraint("Horizontal", 3, 2, 7, 2))
sketch2.addConstraint(Sketcher.Constraint("Horizontal", 2, 2, 8, 2))
sketch2.addConstraint(Sketcher.Constraint("Horizontal", 0, 2, 10, 2))
sketch2.addConstraint(Sketcher.Constraint("Horizontal", 11, 2, 13, 2))
sketch2.addConstraint(Sketcher.Constraint("Horizontal", 13, 2, 15, 1))
sketch2.addConstraint(Sketcher.Constraint("Horizontal", 14, 2, 16, 1))
sketch2.addConstraint(Sketcher.Constraint("Horizontal", 6, 2, 18, 1))
sketch2.addConstraint(Sketcher.Constraint("Vertical", 0, 2, 3, 2))
sketch2.addConstraint(Sketcher.Constraint("Vertical", 3, 2, 14, 2))
sketch2.addConstraint(Sketcher.Constraint("Radius", 0, Q("13.5 mm")))
sketch2.addConstraint(Sketcher.Constraint("Radius", 15, Q("12.15 mm")))
sketch2.addConstraint(Sketcher.Constraint("DistanceX", -1, 1, 1, 2, Q("11 mm")))
sketch2.addConstraint(Sketcher.Constraint("DistanceX", -1, 1, 0, 2, Q("9.25 mm")))
sketch2.setExpression("Constraints[52]", "Params.sketch2_radius")
sketch2.setExpression("Constraints[53]", "Params.sketch2_radius2")
pad2 = body.newObject("PartDesign::Pad", "Pad001")
pad2.Profile = sketch2
pad2.setExpression("Length", "Params.pad2_length")

# Sketch on XZ plane
sketch3 = body.newObject("Sketcher::SketchObject", "Sketch002")
sketch3.AttachmentSupport = (doc.getObject("XZ_Plane"), [""])
sketch3.MapMode = "FlatFace"
sketch3.AttachmentOffset = App.Placement(App.Vector(0, 0, -11), App.Rotation())
sketch3.addGeometry(Part.LineSegment(App.Vector(0, -3, 0), App.Vector(0, 3, 0)), False)
sketch3.addGeometry(Part.LineSegment(App.Vector(0, 3, 0), App.Vector(6, 3, 0)), False)
sketch3.addGeometry(Part.LineSegment(App.Vector(6, 3, 0), App.Vector(6, -3, 0)), False)
sketch3.addGeometry(Part.LineSegment(App.Vector(6, -3, 0), App.Vector(0, -3, 0)), False)
sketch3.addConstraint(Sketcher.Constraint("Coincident", 0, 2, 1, 1))
sketch3.addConstraint(Sketcher.Constraint("Coincident", 1, 2, 2, 1))
sketch3.addConstraint(Sketcher.Constraint("Coincident", 2, 2, 3, 1))
sketch3.addConstraint(Sketcher.Constraint("Coincident", 3, 2, 0, 1))
sketch3.addConstraint(Sketcher.Constraint("Vertical", 0))
sketch3.addConstraint(Sketcher.Constraint("Horizontal", 1))
sketch3.addConstraint(Sketcher.Constraint("Vertical", 2))
sketch3.addConstraint(Sketcher.Constraint("Horizontal", 3))
sketch3.addConstraint(Sketcher.Constraint("Symmetric", 0, 2, 3, 2, -1, 1))
sketch3.addConstraint(Sketcher.Constraint("Equal", 3, 0))
sketch3.addConstraint(Sketcher.Constraint("DistanceX", 1, 1, 1, 2, Q("6 mm")))
sketch3.setExpression("Constraints[10]", "Params.sketch3_width")
pocket1 = body.newObject("PartDesign::Pocket", "Pocket")
pocket1.Profile = sketch3
pocket1.setExpression("Length", "Params.pocket1_length")
pocket1.Reversed = True

# Sketch on XZ plane
sketch4 = body.newObject("Sketcher::SketchObject", "Sketch003")
sketch4.AttachmentSupport = (doc.getObject("XZ_Plane"), [""])
sketch4.MapMode = "FlatFace"
sketch4.AttachmentOffset = App.Placement(App.Vector(0, 0, -9.25), App.Rotation())
sketch4.addGeometry(Part.Circle(App.Vector(1.5, 0, 0), App.Vector(0, 0, 1), 0.4), False)
sketch4.addConstraint(Sketcher.Constraint("PointOnObject", 0, 3, -1))
sketch4.addConstraint(Sketcher.Constraint("Diameter", 0, Q("0.8 mm")))
sketch4.addConstraint(Sketcher.Constraint("DistanceX", -1, 1, 0, 3, Q("1.5 mm")))
sketch4.setExpression("Constraints[1]", "Params.sketch4_diameter")
pocket2 = body.newObject("PartDesign::Pocket", "Pocket001")
pocket2.Profile = sketch4
pocket2.setExpression("Length", "Params.pocket2_length")
pocket2.Reversed = True

# Sketch on XZ plane
sketch5 = body.newObject("Sketcher::SketchObject", "Sketch004")
sketch5.AttachmentSupport = (doc.getObject("XZ_Plane"), [""])
sketch5.MapMode = "FlatFace"
sketch5.AttachmentOffset = App.Placement(App.Vector(0, 0, 9.25), App.Rotation())
sketch5.addGeometry(Part.LineSegment(App.Vector(0, -3, 0), App.Vector(0, 3, 0)), False)
sketch5.addGeometry(Part.LineSegment(App.Vector(0, 3, 0), App.Vector(6, 3, 0)), False)
sketch5.addGeometry(Part.LineSegment(App.Vector(6, 3, 0), App.Vector(6, -3, 0)), False)
sketch5.addGeometry(Part.LineSegment(App.Vector(6, -3, 0), App.Vector(0, -3, 0)), False)
sketch5.addConstraint(Sketcher.Constraint("Coincident", 0, 2, 1, 1))
sketch5.addConstraint(Sketcher.Constraint("Coincident", 1, 2, 2, 1))
sketch5.addConstraint(Sketcher.Constraint("Coincident", 2, 2, 3, 1))
sketch5.addConstraint(Sketcher.Constraint("Coincident", 3, 2, 0, 1))
sketch5.addConstraint(Sketcher.Constraint("Vertical", 0))
sketch5.addConstraint(Sketcher.Constraint("Horizontal", 1))
sketch5.addConstraint(Sketcher.Constraint("Vertical", 2))
sketch5.addConstraint(Sketcher.Constraint("Horizontal", 3))
sketch5.addConstraint(Sketcher.Constraint("Symmetric", 0, 2, 3, 2, -1, 1))
sketch5.addConstraint(Sketcher.Constraint("Equal", 3, 0))
sketch5.addConstraint(Sketcher.Constraint("DistanceX", 1, 1, 1, 2, Q("6 mm")))
sketch5.setExpression("Constraints[10]", "Params.sketch5_width")
pocket3 = body.newObject("PartDesign::Pocket", "Pocket002")
pocket3.Profile = sketch5
pocket3.setExpression("Length", "Params.pocket3_length")
pocket3.Reversed = True

# Sketch on XZ plane
sketch6 = body.newObject("Sketcher::SketchObject", "Sketch005")
sketch6.AttachmentSupport = (doc.getObject("XZ_Plane"), [""])
sketch6.MapMode = "FlatFace"
sketch6.AttachmentOffset = App.Placement(App.Vector(0, 0, 6.25), App.Rotation())
sketch6.addGeometry(Part.Circle(App.Vector(1.5, 0, 0), App.Vector(0, 0, 1), 0.4), False)
sketch6.addConstraint(Sketcher.Constraint("PointOnObject", 0, 3, -1))
sketch6.addConstraint(Sketcher.Constraint("Diameter", 0, Q("0.8 mm")))
sketch6.addConstraint(Sketcher.Constraint("DistanceX", -1, 1, 0, 3, Q("1.5 mm")))
sketch6.setExpression("Constraints[1]", "Params.sketch6_diameter")
pocket4 = body.newObject("PartDesign::Pocket", "Pocket003")
pocket4.Profile = sketch6
pocket4.setExpression("Length", "Params.pocket4_length")
pocket4.Reversed = True

# Sketch on XZ plane
sketch7 = body.newObject("Sketcher::SketchObject", "Sketch006")
sketch7.AttachmentSupport = (doc.getObject("XZ_Plane"), [""])
sketch7.MapMode = "FlatFace"
sketch7.AttachmentOffset = App.Placement(App.Vector(0, 0, -11), App.Rotation())
sketch7.addGeometry(Part.Circle(App.Vector(1.5, 4.7, 0), App.Vector(0, 0, 1), 0.4), False)
sketch7.addGeometry(Part.Circle(App.Vector(1.5, -4.7, 0), App.Vector(0, 0, 1), 0.4), False)
sketch7.addConstraint(Sketcher.Constraint("Equal", 0, 1))
sketch7.addConstraint(Sketcher.Constraint("Symmetric", 0, 3, 1, 3, -1))
sketch7.addConstraint(Sketcher.Constraint("Diameter", 0, Q("0.8 mm")))
sketch7.addConstraint(Sketcher.Constraint("DistanceX", -1, 1, 0, 3, Q("1.5 mm")))
sketch7.addConstraint(Sketcher.Constraint("DistanceY", -1, 1, 0, 3, Q("4.695743 mm")))
sketch7.setExpression("Constraints[2]", "Params.sketch7_diameter")
pocket5 = body.newObject("PartDesign::Pocket", "Pocket004")
pocket5.Profile = sketch7
pocket5.setExpression("Length", "Params.pocket5_length")
pocket5.Reversed = True

doc.recompute()
